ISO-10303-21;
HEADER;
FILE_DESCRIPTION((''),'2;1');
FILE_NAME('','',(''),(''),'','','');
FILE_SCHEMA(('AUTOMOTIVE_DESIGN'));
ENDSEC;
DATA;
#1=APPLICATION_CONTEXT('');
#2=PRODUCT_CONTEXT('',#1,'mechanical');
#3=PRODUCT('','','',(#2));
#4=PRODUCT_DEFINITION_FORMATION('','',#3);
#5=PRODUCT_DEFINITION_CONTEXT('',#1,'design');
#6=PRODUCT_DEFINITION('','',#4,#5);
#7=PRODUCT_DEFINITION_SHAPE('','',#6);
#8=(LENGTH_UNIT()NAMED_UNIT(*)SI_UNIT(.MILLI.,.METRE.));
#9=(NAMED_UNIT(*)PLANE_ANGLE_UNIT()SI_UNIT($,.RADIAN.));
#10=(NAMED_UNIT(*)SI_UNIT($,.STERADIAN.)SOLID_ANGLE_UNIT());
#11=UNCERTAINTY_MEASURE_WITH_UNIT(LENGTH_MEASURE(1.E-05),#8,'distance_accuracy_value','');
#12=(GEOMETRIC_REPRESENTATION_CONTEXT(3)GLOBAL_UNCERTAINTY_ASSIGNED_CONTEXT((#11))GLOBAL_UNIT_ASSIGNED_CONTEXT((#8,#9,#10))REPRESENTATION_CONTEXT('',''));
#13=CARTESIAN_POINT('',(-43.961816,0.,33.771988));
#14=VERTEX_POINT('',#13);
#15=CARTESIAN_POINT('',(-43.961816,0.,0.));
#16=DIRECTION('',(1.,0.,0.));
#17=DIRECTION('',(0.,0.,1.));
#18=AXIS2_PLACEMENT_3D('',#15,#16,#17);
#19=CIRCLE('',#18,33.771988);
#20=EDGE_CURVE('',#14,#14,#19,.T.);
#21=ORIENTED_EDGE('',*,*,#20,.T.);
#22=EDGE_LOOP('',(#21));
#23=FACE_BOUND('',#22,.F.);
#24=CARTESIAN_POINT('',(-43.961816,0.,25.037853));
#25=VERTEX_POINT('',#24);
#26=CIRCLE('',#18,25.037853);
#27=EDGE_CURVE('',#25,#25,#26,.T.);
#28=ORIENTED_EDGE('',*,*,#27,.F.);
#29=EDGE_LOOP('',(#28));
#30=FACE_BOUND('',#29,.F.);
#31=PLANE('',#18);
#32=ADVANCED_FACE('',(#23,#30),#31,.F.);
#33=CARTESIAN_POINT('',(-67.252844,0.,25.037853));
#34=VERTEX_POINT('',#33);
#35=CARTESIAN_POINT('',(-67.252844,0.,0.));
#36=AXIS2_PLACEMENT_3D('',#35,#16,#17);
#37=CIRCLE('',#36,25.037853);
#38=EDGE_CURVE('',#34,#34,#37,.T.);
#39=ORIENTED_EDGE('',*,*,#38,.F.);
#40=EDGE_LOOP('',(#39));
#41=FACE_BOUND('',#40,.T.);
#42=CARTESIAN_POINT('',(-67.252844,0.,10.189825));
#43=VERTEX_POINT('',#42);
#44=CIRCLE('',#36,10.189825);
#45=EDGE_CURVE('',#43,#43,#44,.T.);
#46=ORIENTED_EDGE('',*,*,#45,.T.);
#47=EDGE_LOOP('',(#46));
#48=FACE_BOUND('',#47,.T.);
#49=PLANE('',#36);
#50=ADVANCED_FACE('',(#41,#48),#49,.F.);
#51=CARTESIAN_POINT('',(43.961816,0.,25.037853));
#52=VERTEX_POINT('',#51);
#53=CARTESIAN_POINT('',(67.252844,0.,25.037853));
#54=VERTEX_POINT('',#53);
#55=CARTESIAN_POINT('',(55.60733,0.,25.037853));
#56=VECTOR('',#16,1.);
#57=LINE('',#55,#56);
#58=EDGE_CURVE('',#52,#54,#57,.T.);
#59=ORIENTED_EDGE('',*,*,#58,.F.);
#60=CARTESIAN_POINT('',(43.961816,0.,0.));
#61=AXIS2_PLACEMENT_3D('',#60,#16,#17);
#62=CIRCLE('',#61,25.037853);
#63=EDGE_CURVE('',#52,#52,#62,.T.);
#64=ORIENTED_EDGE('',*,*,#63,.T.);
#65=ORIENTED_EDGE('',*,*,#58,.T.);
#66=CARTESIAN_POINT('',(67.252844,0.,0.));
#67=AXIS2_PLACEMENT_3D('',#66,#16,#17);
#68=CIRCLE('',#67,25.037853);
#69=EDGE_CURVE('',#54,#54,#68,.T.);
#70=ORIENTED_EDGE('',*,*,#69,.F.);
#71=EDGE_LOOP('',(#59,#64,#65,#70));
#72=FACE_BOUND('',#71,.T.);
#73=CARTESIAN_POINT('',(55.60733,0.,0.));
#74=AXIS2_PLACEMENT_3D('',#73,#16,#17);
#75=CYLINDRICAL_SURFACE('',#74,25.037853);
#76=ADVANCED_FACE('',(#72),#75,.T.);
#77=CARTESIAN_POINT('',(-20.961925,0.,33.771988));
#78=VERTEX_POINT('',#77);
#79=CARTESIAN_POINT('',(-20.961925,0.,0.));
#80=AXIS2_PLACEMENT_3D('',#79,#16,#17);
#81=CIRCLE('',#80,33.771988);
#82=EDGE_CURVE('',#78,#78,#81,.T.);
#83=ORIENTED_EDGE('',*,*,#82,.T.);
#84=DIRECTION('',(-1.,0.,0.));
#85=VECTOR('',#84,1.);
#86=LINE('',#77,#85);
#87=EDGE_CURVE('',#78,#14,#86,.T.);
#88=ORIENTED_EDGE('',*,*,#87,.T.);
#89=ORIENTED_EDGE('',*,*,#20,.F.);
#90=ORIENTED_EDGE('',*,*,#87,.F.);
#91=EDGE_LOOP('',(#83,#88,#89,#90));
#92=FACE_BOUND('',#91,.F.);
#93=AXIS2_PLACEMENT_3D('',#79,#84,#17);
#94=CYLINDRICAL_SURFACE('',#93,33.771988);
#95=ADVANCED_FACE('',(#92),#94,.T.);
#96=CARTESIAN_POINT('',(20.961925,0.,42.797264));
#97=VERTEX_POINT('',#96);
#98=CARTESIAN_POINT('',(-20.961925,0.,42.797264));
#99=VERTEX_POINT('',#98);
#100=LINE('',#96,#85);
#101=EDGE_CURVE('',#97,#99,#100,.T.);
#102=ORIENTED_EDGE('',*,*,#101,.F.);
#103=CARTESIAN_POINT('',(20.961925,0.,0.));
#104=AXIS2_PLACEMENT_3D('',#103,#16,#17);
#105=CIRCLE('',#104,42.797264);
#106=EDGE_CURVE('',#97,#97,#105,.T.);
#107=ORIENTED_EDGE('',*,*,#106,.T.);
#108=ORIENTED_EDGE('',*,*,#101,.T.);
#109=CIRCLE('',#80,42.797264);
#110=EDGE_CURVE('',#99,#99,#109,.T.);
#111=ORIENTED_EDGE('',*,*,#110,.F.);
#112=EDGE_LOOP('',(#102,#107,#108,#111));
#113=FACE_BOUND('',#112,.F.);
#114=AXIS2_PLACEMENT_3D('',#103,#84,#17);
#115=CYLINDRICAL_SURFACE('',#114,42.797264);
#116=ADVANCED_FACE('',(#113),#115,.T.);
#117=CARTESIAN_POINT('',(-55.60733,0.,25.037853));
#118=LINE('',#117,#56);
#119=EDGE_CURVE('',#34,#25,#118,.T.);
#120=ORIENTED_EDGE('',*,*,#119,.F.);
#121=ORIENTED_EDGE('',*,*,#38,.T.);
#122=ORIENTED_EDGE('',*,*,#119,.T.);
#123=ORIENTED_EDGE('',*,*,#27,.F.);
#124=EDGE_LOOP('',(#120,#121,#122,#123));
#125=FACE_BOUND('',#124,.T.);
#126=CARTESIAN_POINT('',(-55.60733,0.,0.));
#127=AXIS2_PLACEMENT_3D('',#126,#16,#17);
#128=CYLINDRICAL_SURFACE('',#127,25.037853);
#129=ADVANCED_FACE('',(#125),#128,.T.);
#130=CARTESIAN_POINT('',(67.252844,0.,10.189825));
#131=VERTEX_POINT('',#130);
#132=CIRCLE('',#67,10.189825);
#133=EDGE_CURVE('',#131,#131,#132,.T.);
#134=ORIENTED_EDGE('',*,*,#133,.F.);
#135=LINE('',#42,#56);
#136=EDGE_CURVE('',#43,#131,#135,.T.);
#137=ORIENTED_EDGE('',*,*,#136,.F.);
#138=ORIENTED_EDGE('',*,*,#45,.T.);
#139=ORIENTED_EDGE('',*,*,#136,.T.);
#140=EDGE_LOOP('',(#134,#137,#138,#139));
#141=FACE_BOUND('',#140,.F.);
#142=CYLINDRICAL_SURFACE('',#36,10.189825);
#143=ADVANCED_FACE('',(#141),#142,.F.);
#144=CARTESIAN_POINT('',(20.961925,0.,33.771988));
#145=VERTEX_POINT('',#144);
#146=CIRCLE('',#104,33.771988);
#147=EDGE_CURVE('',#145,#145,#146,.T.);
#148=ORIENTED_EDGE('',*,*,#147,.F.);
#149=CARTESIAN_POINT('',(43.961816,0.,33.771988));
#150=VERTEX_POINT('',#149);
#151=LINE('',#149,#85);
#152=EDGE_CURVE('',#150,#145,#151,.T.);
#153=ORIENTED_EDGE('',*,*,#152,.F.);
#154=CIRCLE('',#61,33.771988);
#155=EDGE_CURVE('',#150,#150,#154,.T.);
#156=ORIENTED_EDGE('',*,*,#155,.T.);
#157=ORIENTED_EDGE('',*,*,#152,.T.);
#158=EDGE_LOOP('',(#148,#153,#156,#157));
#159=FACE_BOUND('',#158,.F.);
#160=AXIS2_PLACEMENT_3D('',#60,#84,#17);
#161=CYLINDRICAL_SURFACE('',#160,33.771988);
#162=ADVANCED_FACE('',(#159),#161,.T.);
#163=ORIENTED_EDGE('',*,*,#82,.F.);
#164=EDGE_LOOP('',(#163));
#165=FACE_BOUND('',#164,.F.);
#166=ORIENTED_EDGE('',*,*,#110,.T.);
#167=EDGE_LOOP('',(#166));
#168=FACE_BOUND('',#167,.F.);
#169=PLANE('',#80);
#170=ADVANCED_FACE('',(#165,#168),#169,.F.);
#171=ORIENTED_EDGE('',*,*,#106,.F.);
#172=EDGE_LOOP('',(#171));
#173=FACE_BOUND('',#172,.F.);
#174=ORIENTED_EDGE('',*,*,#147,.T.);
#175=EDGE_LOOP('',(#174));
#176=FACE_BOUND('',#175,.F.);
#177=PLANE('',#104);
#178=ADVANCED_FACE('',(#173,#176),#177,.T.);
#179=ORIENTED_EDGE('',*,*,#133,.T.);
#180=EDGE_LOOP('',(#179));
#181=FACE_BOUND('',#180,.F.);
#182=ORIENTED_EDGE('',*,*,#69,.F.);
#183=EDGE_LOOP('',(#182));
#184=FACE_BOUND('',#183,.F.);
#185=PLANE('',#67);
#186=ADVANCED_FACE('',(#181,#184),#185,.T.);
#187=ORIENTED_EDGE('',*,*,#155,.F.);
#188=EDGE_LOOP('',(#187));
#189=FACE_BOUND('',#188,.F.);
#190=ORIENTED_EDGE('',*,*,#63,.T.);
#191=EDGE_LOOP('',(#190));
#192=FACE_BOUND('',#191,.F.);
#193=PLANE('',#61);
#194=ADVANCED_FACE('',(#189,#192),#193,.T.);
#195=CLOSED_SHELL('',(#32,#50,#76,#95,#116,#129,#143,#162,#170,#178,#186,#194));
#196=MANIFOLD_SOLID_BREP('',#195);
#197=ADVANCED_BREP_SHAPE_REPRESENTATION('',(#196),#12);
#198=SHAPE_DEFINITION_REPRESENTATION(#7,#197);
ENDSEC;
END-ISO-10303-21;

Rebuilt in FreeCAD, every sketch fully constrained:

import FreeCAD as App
import Part
import Sketcher
Q = App.Units.Quantity

doc = App.newDocument("Part")
body = doc.addObject("PartDesign::Body", "Body")

sketch1 = doc.addObject("Sketcher::SketchObject", "Sketch")
body.addObject(sketch1)
sketch1.AttachmentSupport = (doc.XZ_Plane, [""])
sketch1.MapMode = "FlatFace"
sketch1.addGeometry(Part.LineSegment(App.Vector(20.961925, 33.771988, 0), App.Vector(20.961925, 42.797264, 0)), False)
sketch1.addGeometry(Part.LineSegment(App.Vector(20.961925, 42.797264, 0), App.Vector(-20.961925, 42.797264, 0)), False)
sketch1.addGeometry(Part.LineSegment(App.Vector(-20.961925, 42.797264, 0), App.Vector(-20.961925, 33.771988, 0)), False)
sketch1.addGeometry(Part.LineSegment(App.Vector(-20.961925, 33.771988, 0), App.Vector(-43.961816, 33.771988, 0)), False)
sketch1.addGeometry(Part.LineSegment(App.Vector(-43.961816, 33.771988, 0), App.Vector(-43.961816, 25.037853, 0)), False)
sketch1.addGeometry(Part.LineSegment(App.Vector(-43.961816, 25.037853, 0), App.Vector(-67.252844, 25.037853, 0)), False)
sketch1.addGeometry(Part.LineSegment(App.Vector(-67.252844, 25.037853, 0), App.Vector(-67.252844, 10.189825, 0)), False)
sketch1.addGeometry(Part.LineSegment(App.Vector(-67.252844, 10.189825, 0), App.Vector(67.252844, 10.189825, 0)), False)
sketch1.addGeometry(Part.LineSegment(App.Vector(67.252844, 10.189825, 0), App.Vector(67.252844, 25.037853, 0)), False)
sketch1.addGeometry(Part.LineSegment(App.Vector(67.252844, 25.037853, 0), App.Vector(43.961816, 25.037853, 0)), False)
sketch1.addGeometry(Part.LineSegment(App.Vector(43.961816, 25.037853, 0), App.Vector(43.961816, 33.771988, 0)), False)
sketch1.addGeometry(Part.LineSegment(App.Vector(43.961816, 33.771988, 0), App.Vector(20.961925, 33.771988, 0)), False)
sketch1.addConstraint(Sketcher.Constraint("Coincident", 0, 2, 1, 1))
sketch1.addConstraint(Sketcher.Constraint("Coincident", 1, 2, 2, 1))
sketch1.addConstraint(Sketcher.Constraint("Coincident", 2, 2, 3, 1))
sketch1.addConstraint(Sketcher.Constraint("Coincident", 3, 2, 4, 1))
sketch1.addConstraint(Sketcher.Constraint("Coincident", 4, 2, 5, 1))
sketch1.addConstraint(Sketcher.Constraint("Coincident", 5, 2, 6, 1))
sketch1.addConstraint(Sketcher.Constraint("Coincident", 6, 2, 7, 1))
sketch1.addConstraint(Sketcher.Constraint("Coincident", 7, 2, 8, 1))
sketch1.addConstraint(Sketcher.Constraint("Coincident", 8, 2, 9, 1))
sketch1.addConstraint(Sketcher.Constraint("Coincident", 9, 2, 10, 1))
sketch1.addConstraint(Sketcher.Constraint("Coincident", 10, 2, 11, 1))
sketch1.addConstraint(Sketcher.Constraint("Coincident", 11, 2, 0, 1))
sketch1.addConstraint(Sketcher.Constraint("Vertical", 0))
sketch1.addConstraint(Sketcher.Constraint("Horizontal", 1))
sketch1.addConstraint(Sketcher.Constraint("Vertical", 2))
sketch1.addConstraint(Sketcher.Constraint("Horizontal", 3))
sketch1.addConstraint(Sketcher.Constraint("Vertical", 4))
sketch1.addConstraint(Sketcher.Constraint("Horizontal", 5))
sketch1.addConstraint(Sketcher.Constraint("Vertical", 6))
sketch1.addConstraint(Sketcher.Constraint("Horizontal", 7))
sketch1.addConstraint(Sketcher.Constraint("Vertical", 8))
sketch1.addConstraint(Sketcher.Constraint("Horizontal", 9))
sketch1.addConstraint(Sketcher.Constraint("Vertical", 10))
sketch1.addConstraint(Sketcher.Constraint("Horizontal", 11))
sketch1.addConstraint(Sketcher.Constraint("Symmetric", 5, 2, 8, 2, -2))
sketch1.addConstraint(Sketcher.Constraint("Symmetric", 3, 2, 10, 2, -2))
sketch1.addConstraint(Sketcher.Constraint("Equal", 3, 11))
sketch1.addConstraint(Sketcher.Constraint("DistanceX", 1, 2, 1, 1, Q("41.92385 mm")))
sketch1.addConstraint(Sketcher.Constraint("DistanceX", 3, 2, 3, 1, Q("22.999891 mm")))
sketch1.addConstraint(Sketcher.Constraint("DistanceX", 5, 2, 5, 1, Q("23.291028 mm")))
sketch1.addConstraint(Sketcher.Constraint("DistanceY", 0, 1, 0, 2, Q("9.025276 mm")))
sketch1.addConstraint(Sketcher.Constraint("DistanceY", 4, 2, 4, 1, Q("8.734135 mm")))
sketch1.addConstraint(Sketcher.Constraint("DistanceY", 6, 2, 6, 1, Q("14.848028 mm")))
sketch1.addConstraint(Sketcher.Constraint("DistanceY", -1, 1, 0, 2, Q("42.797264 mm")))
revolution = doc.addObject("PartDesign::Revolution", "Revolution")
body.addObject(revolution)
revolution.Profile = sketch1
revolution.ReferenceAxis = (sketch1, ["H_Axis"])
revolution.Angle = 360

doc.recompute()
